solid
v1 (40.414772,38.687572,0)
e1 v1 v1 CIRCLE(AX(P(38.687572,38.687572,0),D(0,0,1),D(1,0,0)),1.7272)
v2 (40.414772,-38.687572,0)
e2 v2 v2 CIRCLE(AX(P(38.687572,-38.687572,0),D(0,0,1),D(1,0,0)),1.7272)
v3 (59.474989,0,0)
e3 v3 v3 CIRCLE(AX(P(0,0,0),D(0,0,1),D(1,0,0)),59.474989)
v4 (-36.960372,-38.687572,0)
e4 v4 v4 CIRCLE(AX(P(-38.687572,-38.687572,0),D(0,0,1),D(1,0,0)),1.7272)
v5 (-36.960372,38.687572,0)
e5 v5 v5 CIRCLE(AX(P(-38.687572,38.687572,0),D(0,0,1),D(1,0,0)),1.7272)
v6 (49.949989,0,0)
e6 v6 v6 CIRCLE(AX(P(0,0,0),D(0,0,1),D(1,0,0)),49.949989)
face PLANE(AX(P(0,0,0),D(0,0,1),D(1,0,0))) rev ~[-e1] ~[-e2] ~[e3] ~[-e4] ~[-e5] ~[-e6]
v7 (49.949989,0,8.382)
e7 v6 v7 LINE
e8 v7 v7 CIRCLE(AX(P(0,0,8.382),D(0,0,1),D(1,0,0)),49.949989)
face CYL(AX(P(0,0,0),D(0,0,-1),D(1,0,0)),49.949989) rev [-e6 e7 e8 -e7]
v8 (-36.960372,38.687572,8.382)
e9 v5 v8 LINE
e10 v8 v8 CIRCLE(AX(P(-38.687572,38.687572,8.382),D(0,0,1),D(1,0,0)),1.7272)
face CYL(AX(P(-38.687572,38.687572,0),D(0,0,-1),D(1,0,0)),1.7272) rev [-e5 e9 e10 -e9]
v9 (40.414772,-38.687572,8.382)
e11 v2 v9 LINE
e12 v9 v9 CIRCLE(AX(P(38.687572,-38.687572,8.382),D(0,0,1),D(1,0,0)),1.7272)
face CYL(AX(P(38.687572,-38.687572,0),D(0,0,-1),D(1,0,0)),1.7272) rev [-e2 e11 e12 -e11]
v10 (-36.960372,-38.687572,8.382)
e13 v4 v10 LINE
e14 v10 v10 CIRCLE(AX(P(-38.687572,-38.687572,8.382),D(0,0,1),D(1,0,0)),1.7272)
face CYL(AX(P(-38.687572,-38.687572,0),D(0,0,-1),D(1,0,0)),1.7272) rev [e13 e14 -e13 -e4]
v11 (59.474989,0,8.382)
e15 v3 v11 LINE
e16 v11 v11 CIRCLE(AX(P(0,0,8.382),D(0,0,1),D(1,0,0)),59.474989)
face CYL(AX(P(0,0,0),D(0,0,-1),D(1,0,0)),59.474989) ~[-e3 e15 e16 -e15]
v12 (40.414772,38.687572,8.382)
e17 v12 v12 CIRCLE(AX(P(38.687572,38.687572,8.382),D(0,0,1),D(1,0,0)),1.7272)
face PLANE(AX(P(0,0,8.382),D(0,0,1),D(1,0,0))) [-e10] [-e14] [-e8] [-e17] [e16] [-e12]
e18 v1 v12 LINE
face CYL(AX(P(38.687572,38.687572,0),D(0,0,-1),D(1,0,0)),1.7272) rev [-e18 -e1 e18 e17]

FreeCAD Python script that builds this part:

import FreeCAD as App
import Part
import Sketcher

V = App.Vector
Q = App.Units.Quantity

doc = App.newDocument("Part")
body = doc.addObject("PartDesign::Body", "Body")

# Sketch on XY plane
sketch1 = doc.addObject("Sketcher::SketchObject", "Sketch")
body.addObject(sketch1)
sketch1.AttachmentSupport = (doc.XY_Plane, [""])
sketch1.MapMode = "FlatFace"
sketch1.addGeometry(Part.Circle(V(0, 0, 0), V(0, 0, 1), 59.5), False)
sketch1.addGeometry(Part.Circle(V(-38.7, -38.7, 0), V(0, 0, 1), 1.7), False)
sketch1.addGeometry(Part.Circle(V(38.7, -38.7, 0), V(0, 0, 1), 1.7), False)
sketch1.addGeometry(Part.Circle(V(-38.7, 38.7, 0), V(0, 0, 1), 1.7), False)
sketch1.addGeometry(Part.Circle(V(0, 0, 0), V(0, 0, 1), 49.9), False)
sketch1.addGeometry(Part.Circle(V(38.7, 38.7, 0), V(0, 0, 1), 1.7), False)
sketch1.addConstraint(Sketcher.Constraint("Coincident", 0, 3, -1, 1))
sketch1.addConstraint(Sketcher.Constraint("Coincident", 4, 3, -1, 1))
sketch1.addConstraint(Sketcher.Constraint("Equal", 1, 2))
sketch1.addConstraint(Sketcher.Constraint("Equal", 2, 3))
sketch1.addConstraint(Sketcher.Constraint("Equal", 3, 5))
sketch1.addConstraint(Sketcher.Constraint("Symmetric", 2, 3, 3, 3, -1, 1))
sketch1.addConstraint(Sketcher.Constraint("Symmetric", 1, 3, 5, 3, -1, 1))
sketch1.addConstraint(Sketcher.Constraint("Symmetric", 1, 3, 2, 3, -2))
sketch1.addConstraint(Sketcher.Constraint("Diameter", 1, Q("0.136 in")))
sketch1.addConstraint(Sketcher.Constraint("Diameter", 0, 118.949978))
sketch1.addConstraint(Sketcher.Constraint("Diameter", 4, 99.899978))
sketch1.addConstraint(Sketcher.Constraint("DistanceX", 1, 3, -1, 1, 38.687572))
sketch1.addConstraint(Sketcher.Constraint("DistanceY", 1, 3, -1, 1, 38.687572))
pad1 = doc.addObject("PartDesign::Pad", "Pad")
body.addObject(pad1)
pad1.Profile = sketch1
pad1.Length = Q("0.33 in")

doc.recompute()
